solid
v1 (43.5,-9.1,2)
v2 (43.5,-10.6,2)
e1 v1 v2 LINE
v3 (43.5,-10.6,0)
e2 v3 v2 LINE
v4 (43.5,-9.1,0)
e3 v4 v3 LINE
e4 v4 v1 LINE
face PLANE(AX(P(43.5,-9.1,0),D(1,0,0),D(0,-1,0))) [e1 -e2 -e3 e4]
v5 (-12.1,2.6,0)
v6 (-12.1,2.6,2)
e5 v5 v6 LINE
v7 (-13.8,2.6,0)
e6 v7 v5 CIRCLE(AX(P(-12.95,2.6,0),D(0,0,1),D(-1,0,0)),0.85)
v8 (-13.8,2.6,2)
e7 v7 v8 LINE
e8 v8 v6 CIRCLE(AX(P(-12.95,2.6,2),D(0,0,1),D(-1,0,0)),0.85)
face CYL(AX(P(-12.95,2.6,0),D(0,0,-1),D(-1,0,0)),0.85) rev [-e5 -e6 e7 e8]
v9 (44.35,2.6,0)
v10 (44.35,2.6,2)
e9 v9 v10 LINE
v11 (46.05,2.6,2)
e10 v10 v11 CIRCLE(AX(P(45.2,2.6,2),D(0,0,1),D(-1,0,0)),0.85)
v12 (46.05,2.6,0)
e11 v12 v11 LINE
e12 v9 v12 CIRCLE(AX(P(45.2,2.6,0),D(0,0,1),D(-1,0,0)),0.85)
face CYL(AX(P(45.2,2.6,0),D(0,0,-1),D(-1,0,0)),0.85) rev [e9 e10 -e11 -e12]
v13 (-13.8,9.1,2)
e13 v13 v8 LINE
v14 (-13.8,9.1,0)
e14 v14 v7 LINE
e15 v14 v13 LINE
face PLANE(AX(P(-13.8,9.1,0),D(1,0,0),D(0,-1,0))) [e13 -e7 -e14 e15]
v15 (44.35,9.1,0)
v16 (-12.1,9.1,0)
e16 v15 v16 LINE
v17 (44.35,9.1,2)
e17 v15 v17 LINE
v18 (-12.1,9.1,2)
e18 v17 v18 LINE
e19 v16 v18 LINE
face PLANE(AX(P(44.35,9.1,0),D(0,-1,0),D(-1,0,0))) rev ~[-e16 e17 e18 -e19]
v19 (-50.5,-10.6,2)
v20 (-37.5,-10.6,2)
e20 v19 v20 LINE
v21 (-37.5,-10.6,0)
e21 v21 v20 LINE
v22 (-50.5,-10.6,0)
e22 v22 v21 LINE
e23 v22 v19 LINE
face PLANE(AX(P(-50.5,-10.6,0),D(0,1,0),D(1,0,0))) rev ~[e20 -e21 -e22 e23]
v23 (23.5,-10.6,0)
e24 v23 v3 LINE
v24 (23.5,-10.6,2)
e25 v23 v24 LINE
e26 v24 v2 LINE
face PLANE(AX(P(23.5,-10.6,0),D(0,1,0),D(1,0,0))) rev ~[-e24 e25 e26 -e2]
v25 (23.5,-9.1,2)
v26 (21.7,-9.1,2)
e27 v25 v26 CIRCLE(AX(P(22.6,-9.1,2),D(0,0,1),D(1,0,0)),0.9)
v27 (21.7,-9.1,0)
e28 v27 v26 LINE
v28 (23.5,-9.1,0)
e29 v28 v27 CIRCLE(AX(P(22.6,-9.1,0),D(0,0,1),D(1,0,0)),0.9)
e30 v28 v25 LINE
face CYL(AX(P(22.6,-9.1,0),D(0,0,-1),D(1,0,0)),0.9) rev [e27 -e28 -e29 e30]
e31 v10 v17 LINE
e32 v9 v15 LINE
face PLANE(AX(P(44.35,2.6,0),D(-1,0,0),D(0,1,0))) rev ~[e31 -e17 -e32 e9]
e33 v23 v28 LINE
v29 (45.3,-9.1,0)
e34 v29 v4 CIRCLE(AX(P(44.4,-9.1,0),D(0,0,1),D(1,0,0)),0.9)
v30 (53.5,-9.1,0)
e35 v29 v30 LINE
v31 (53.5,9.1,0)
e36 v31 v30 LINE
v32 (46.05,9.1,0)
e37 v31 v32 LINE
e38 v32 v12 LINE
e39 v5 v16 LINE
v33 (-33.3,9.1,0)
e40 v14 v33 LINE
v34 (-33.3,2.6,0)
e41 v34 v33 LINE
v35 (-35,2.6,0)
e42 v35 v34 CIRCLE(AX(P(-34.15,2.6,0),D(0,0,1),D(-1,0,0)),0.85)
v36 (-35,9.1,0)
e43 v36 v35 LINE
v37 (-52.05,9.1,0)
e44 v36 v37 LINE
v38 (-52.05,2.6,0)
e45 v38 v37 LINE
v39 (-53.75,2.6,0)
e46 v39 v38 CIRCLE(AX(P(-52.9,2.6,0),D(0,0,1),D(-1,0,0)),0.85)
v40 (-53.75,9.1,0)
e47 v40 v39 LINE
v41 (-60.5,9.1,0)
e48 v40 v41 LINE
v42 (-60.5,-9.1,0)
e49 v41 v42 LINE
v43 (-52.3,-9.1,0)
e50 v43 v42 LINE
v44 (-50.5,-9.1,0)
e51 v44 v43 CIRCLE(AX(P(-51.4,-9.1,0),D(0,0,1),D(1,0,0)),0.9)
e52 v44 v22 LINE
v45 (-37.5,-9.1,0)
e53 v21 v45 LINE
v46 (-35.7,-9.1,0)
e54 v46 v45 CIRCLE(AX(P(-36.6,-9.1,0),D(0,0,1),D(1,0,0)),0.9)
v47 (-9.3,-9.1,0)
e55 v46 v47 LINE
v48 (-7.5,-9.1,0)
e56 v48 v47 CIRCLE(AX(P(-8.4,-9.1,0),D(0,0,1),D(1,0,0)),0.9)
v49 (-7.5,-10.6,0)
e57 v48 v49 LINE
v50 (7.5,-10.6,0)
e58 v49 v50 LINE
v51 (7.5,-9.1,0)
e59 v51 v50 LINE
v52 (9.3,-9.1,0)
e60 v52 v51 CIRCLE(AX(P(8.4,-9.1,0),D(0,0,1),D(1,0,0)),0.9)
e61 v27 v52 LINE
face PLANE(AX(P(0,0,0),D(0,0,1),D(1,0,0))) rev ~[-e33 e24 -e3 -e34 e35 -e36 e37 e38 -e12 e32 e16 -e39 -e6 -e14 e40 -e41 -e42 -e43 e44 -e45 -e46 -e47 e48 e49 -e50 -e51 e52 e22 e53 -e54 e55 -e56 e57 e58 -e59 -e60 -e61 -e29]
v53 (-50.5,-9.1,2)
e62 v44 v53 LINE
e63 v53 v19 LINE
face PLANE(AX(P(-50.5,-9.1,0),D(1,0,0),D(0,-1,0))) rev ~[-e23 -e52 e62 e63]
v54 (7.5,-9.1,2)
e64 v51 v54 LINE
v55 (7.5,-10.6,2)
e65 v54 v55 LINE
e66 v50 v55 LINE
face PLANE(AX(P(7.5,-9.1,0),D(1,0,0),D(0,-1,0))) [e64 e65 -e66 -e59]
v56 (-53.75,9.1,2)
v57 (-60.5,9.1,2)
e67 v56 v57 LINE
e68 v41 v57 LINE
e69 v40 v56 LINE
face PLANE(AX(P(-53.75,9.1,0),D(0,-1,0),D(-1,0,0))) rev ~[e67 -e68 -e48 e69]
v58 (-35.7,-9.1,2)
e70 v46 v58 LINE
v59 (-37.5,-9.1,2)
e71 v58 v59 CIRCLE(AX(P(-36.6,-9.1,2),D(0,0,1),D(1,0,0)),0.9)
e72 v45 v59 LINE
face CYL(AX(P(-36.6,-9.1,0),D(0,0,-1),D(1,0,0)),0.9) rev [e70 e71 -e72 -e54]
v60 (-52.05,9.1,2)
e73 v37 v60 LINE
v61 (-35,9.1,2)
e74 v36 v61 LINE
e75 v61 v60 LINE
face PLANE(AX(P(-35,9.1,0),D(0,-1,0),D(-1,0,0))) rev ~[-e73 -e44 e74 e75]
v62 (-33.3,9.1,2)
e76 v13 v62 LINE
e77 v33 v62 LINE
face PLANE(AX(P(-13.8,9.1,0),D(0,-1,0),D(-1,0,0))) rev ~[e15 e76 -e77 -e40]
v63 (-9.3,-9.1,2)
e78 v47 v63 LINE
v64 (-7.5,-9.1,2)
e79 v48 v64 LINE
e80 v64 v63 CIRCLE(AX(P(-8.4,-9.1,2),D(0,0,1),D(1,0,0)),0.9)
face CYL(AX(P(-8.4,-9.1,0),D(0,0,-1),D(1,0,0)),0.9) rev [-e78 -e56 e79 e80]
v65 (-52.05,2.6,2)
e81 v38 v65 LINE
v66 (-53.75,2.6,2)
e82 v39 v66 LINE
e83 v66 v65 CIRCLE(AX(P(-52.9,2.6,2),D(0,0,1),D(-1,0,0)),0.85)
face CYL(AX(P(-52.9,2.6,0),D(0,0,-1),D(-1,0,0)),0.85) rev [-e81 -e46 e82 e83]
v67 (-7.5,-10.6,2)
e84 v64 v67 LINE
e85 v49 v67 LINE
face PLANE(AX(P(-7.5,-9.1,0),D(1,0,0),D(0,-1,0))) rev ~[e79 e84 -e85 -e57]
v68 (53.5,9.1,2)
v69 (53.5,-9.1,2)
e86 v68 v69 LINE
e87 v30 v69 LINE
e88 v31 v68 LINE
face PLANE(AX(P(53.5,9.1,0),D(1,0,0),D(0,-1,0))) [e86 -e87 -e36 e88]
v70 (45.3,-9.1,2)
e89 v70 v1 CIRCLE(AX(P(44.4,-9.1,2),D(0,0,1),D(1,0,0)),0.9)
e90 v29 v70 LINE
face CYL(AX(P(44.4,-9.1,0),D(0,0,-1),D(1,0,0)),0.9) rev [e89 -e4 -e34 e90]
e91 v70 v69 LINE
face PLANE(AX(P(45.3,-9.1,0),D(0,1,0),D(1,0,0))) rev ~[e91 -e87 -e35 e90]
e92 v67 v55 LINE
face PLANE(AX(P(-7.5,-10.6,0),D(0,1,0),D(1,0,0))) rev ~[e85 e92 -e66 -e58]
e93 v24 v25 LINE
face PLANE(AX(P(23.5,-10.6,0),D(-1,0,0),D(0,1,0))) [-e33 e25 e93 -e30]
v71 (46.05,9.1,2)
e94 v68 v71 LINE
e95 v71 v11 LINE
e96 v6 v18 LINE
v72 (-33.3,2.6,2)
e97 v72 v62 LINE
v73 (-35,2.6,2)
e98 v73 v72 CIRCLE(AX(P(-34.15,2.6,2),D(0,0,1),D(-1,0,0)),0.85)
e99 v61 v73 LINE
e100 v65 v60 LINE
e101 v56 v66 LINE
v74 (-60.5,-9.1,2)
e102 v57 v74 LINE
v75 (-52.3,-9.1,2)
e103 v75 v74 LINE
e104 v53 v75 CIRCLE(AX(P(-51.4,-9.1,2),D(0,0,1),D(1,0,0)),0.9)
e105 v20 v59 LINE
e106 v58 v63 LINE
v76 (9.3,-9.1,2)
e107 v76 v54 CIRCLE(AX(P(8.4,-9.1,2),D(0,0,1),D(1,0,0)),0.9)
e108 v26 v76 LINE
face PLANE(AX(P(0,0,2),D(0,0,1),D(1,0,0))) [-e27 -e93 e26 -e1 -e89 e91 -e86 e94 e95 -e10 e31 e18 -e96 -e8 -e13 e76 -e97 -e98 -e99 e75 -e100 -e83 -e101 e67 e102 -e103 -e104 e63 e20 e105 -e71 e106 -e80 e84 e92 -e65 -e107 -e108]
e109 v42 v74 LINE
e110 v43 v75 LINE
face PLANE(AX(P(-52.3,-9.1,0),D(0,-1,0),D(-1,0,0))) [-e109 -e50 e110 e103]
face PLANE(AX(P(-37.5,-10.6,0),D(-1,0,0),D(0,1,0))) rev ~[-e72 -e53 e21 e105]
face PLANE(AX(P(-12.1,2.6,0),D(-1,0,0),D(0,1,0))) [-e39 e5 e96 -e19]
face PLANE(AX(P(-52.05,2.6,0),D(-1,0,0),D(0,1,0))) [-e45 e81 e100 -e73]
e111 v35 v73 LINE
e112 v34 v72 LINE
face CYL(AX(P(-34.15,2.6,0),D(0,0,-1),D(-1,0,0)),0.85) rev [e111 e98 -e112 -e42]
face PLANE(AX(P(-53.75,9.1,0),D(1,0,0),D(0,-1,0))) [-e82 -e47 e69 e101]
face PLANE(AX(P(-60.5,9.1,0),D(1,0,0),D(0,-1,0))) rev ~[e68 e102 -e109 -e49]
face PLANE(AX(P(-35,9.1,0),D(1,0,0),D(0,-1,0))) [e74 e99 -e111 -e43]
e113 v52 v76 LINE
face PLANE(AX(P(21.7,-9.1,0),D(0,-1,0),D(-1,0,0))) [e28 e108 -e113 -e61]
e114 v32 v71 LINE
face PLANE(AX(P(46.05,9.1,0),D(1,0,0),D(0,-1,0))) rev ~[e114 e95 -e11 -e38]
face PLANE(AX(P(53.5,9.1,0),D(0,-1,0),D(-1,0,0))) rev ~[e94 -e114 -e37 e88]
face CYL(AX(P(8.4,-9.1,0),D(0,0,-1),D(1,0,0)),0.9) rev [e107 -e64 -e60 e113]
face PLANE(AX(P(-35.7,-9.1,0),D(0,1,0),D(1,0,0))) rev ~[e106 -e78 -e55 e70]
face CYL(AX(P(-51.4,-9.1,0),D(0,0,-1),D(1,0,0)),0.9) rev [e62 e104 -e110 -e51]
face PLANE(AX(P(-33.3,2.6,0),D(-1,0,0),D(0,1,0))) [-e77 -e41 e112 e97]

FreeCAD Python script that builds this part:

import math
import FreeCAD as App
import Part
import Sketcher

doc = App.newDocument("Part")
body = doc.addObject("PartDesign::Body", "Body")

sketch1 = body.newObject("Sketcher::SketchObject", "Sketch")
sketch1.AttachmentSupport = (doc.getObject("XY_Plane"), [""])
sketch1.MapMode = "FlatFace"
sketch1.addGeometry([
    Part.LineSegment(App.Vector(-53.8, 9.1, 0), App.Vector(-60.5, 9.1, 0)),
    Part.LineSegment(App.Vector(-60.5, 9.1, 0), App.Vector(-60.5, -9.1, 0)),
    Part.LineSegment(App.Vector(-60.5, -9.1, 0), App.Vector(-52.3, -9.1, 0)),
    Part.ArcOfCircle(Part.Circle(App.Vector(-51.4, -9.1, 0), App.Vector(0, 0, 1), 0.9), math.radians(0), math.radians(180)),
    Part.LineSegment(App.Vector(-50.5, -9.1, 0), App.Vector(-50.5, -10.6, 0)),
    Part.LineSegment(App.Vector(-50.5, -10.6, 0), App.Vector(-37.5, -10.6, 0)),
    Part.LineSegment(App.Vector(-37.5, -10.6, 0), App.Vector(-37.5, -9.1, 0)),
    Part.ArcOfCircle(Part.Circle(App.Vector(-36.6, -9.1, 0), App.Vector(0, 0, 1), 0.9), math.radians(0), math.radians(180)),
    Part.LineSegment(App.Vector(-35.7, -9.1, 0), App.Vector(-9.3, -9.1, 0)),
    Part.ArcOfCircle(Part.Circle(App.Vector(-8.4, -9.1, 0), App.Vector(0, 0, 1), 0.9), math.radians(0), math.radians(180)),
    Part.LineSegment(App.Vector(-7.5, -9.1, 0), App.Vector(-7.5, -10.6, 0)),
    Part.LineSegment(App.Vector(-7.5, -10.6, 0), App.Vector(7.5, -10.6, 0)),
    Part.LineSegment(App.Vector(7.5, -10.6, 0), App.Vector(7.5, -9.1, 0)),
    Part.ArcOfCircle(Part.Circle(App.Vector(8.4, -9.1, 0), App.Vector(0, 0, 1), 0.9), math.radians(0), math.radians(180)),
    Part.LineSegment(App.Vector(9.3, -9.1, 0), App.Vector(21.7, -9.1, 0)),
    Part.ArcOfCircle(Part.Circle(App.Vector(22.6, -9.1, 0), App.Vector(0, 0, 1), 0.9), math.radians(0), math.radians(180)),
    Part.LineSegment(App.Vector(23.5, -9.1, 0), App.Vector(23.5, -10.6, 0)),
    Part.LineSegment(App.Vector(23.5, -10.6, 0), App.Vector(43.5, -10.6, 0)),
    Part.LineSegment(App.Vector(43.5, -10.6, 0), App.Vector(43.5, -9.1, 0)),
    Part.ArcOfCircle(Part.Circle(App.Vector(44.4, -9.1, 0), App.Vector(0, 0, 1), 0.9), math.radians(0), math.radians(180)),
    Part.LineSegment(App.Vector(45.3, -9.1, 0), App.Vector(53.5, -9.1, 0)),
    Part.LineSegment(App.Vector(53.5, -9.1, 0), App.Vector(53.5, 9.1, 0)),
    Part.LineSegment(App.Vector(53.5, 9.1, 0), App.Vector(46, 9.1, 0)),
    Part.LineSegment(App.Vector(46, 9.1, 0), App.Vector(46, 2.6, 0)),
    Part.ArcOfCircle(Part.Circle(App.Vector(45.2, 2.6, 0), App.Vector(0, 0, 1), 0.9), math.radians(180), math.radians(360)),
    Part.LineSegment(App.Vector(44.4, 2.6, 0), App.Vector(44.4, 9.1, 0)),
    Part.LineSegment(App.Vector(44.4, 9.1, 0), App.Vector(-12.1, 9.1, 0)),
    Part.LineSegment(App.Vector(-12.1, 9.1, 0), App.Vector(-12.1, 2.6, 0)),
    Part.ArcOfCircle(Part.Circle(App.Vector(-12.9, 2.6, 0), App.Vector(0, 0, 1), 0.9), math.radians(180), math.radians(360)),
    Part.LineSegment(App.Vector(-13.8, 2.6, 0), App.Vector(-13.8, 9.1, 0)),
    Part.LineSegment(App.Vector(-13.8, 9.1, 0), App.Vector(-33.3, 9.1, 0)),
    Part.LineSegment(App.Vector(-33.3, 9.1, 0), App.Vector(-33.3, 2.6, 0)),
    Part.ArcOfCircle(Part.Circle(App.Vector(-34.1, 2.6, 0), App.Vector(0, 0, 1), 0.9), math.radians(180), math.radians(360)),
    Part.LineSegment(App.Vector(-35, 2.6, 0), App.Vector(-35, 9.1, 0)),
    Part.LineSegment(App.Vector(-35, 9.1, 0), App.Vector(-52, 9.1, 0)),
    Part.LineSegment(App.Vector(-52, 9.1, 0), App.Vector(-52, 2.6, 0)),
    Part.ArcOfCircle(Part.Circle(App.Vector(-52.9, 2.6, 0), App.Vector(0, 0, 1), 0.9), math.radians(180), math.radians(360)),
    Part.LineSegment(App.Vector(-53.8, 2.6, 0), App.Vector(-53.8, 9.1, 0)),
], False)
sketch1.addConstraint([
    Sketcher.Constraint("Coincident", 0, 2, 1, 1),
    Sketcher.Constraint("Coincident", 1, 2, 2, 1),
    Sketcher.Constraint("Coincident", 2, 2, 3, 2),
    Sketcher.Constraint("Tangent", 3, 1, 4, 1),
    Sketcher.Constraint("Coincident", 4, 2, 5, 1),
    Sketcher.Constraint("Coincident", 5, 2, 6, 1),
    Sketcher.Constraint("Tangent", 6, 2, 7, 2),
    Sketcher.Constraint("Coincident", 7, 1, 8, 1),
    Sketcher.Constraint("Coincident", 8, 2, 9, 2),
    Sketcher.Constraint("Tangent", 9, 1, 10, 1),
    Sketcher.Constraint("Coincident", 10, 2, 11, 1),
    Sketcher.Constraint("Coincident", 11, 2, 12, 1),
    Sketcher.Constraint("Tangent", 12, 2, 13, 2),
    Sketcher.Constraint("Coincident", 13, 1, 14, 1),
    Sketcher.Constraint("Coincident", 14, 2, 15, 2),
    Sketcher.Constraint("Tangent", 15, 1, 16, 1),
    Sketcher.Constraint("Coincident", 16, 2, 17, 1),
    Sketcher.Constraint("Coincident", 17, 2, 18, 1),
    Sketcher.Constraint("Tangent", 18, 2, 19, 2),
    Sketcher.Constraint("Coincident", 19, 1, 20, 1),
    Sketcher.Constraint("Coincident", 20, 2, 21, 1),
    Sketcher.Constraint("Coincident", 21, 2, 22, 1),
    Sketcher.Constraint("Coincident", 22, 2, 23, 1),
    Sketcher.Constraint("Tangent", 23, 2, 24, 2),
    Sketcher.Constraint("Tangent", 24, 1, 25, 1),
    Sketcher.Constraint("Coincident", 25, 2, 26, 1),
    Sketcher.Constraint("Coincident", 26, 2, 27, 1),
    Sketcher.Constraint("Tangent", 27, 2, 28, 2),
    Sketcher.Constraint("Tangent", 28, 1, 29, 1),
    Sketcher.Constraint("Coincident", 29, 2, 30, 1),
    Sketcher.Constraint("Coincident", 30, 2, 31, 1),
    Sketcher.Constraint("Tangent", 31, 2, 32, 2),
    Sketcher.Constraint("Tangent", 32, 1, 33, 1),
    Sketcher.Constraint("Coincident", 33, 2, 34, 1),
    Sketcher.Constraint("Coincident", 34, 2, 35, 1),
    Sketcher.Constraint("Tangent", 35, 2, 36, 2),
    Sketcher.Constraint("Tangent", 36, 1, 37, 1),
    Sketcher.Constraint("Coincident", 37, 2, 0, 1),
    Sketcher.Constraint("Horizontal", 0),
    Sketcher.Constraint("Vertical", 1),
    Sketcher.Constraint("Horizontal", 2),
    Sketcher.Constraint("Vertical", 4),
    Sketcher.Constraint("Horizontal", 5),
    Sketcher.Constraint("Vertical", 6),
    Sketcher.Constraint("Horizontal", 8),
    Sketcher.Constraint("Vertical", 10),
    Sketcher.Constraint("Horizontal", 11),
    Sketcher.Constraint("Vertical", 12),
    Sketcher.Constraint("Horizontal", 14),
    Sketcher.Constraint("Vertical", 16),
    Sketcher.Constraint("Horizontal", 17),
    Sketcher.Constraint("Vertical", 18),
    Sketcher.Constraint("Horizontal", 20),
    Sketcher.Constraint("Vertical", 21),
    Sketcher.Constraint("Horizontal", 22),
    Sketcher.Constraint("Vertical", 23),
    Sketcher.Constraint("Vertical", 25),
    Sketcher.Constraint("Horizontal", 26),
    Sketcher.Constraint("Vertical", 27),
    Sketcher.Constraint("Vertical", 29),
    Sketcher.Constraint("Horizontal", 30),
    Sketcher.Constraint("Vertical", 31),
    Sketcher.Constraint("Vertical", 33),
    Sketcher.Constraint("Horizontal", 34),
    Sketcher.Constraint("Vertical", 35),
    Sketcher.Constraint("Vertical", 37),
    Sketcher.Constraint("Equal", 3, 7),
    Sketcher.Constraint("Equal", 7, 9),
    Sketcher.Constraint("Equal", 9, 13),
    Sketcher.Constraint("Equal", 13, 15),
    Sketcher.Constraint("Equal", 15, 19),
    Sketcher.Constraint("Equal", 24, 28),
    Sketcher.Constraint("Equal", 28, 32),
    Sketcher.Constraint("Equal", 32, 36),
    Sketcher.Constraint("Symmetric", 9, 3, 13, 3, -2),
    Sketcher.Constraint("Horizontal", 3, 3, 7, 3),
    Sketcher.Constraint("Horizontal", 7, 3, 9, 3),
    Sketcher.Constraint("Horizontal", 13, 3, 15, 3),
    Sketcher.Constraint("Horizontal", 15, 3, 19, 3),
    Sketcher.Constraint("Horizontal", 24, 3, 28, 3),
    Sketcher.Constraint("Horizontal", 28, 3, 32, 3),
    Sketcher.Constraint("Horizontal", 32, 3, 36, 3),
    Sketcher.Constraint("Horizontal", 19, 3, 1, 2),
    Sketcher.Constraint("Horizontal", 6, 2, 7, 1),
    Sketcher.Constraint("Horizontal", 5, 2, 10, 2),
    Sketcher.Constraint("Horizontal", 12, 2, 13, 1),
    Sketcher.Constraint("Horizontal", 11, 2, 16, 2),
    Sketcher.Constraint("Horizontal", 18, 2, 19, 1),
    Sketcher.Constraint("Horizontal", 0, 2, 21, 2),
    Sketcher.Constraint("Horizontal", 22, 2, 25, 2),
    Sketcher.Constraint("Horizontal", 26, 2, 29, 2),
    Sketcher.Constraint("Horizontal", 30, 2, 33, 2),
    Sketcher.Constraint("Equal", 2, 20),
    Sketcher.Constraint("Radius", 3, 0.9),
    Sketcher.Constraint("DistanceX", 5, 1, 5, 2, 13.0),
    Sketcher.Constraint("DistanceX", 11, 1, 11, 2, 15.0),
    Sketcher.Constraint("DistanceX", 17, 1, 17, 2, 20.0),
    Sketcher.Constraint("Radius", 24, 0.85),
    Sketcher.Constraint("DistanceX", 30, 2, 30, 1, 19.5),
    Sketcher.Constraint("DistanceY", 1, 2, 1, 1, 18.2),
    Sketcher.Constraint("DistanceY", 4, 2, 4, 1, 1.5),
    Sketcher.Constraint("DistanceY", 23, 2, 23, 1, 6.5),
    Sketcher.Constraint("DistanceX", 1, 2, 3, 1, 10.0),
    Sketcher.Constraint("DistanceX", 12, 2, 15, 1, 16.0),
    Sketcher.Constraint("DistanceX", 0, 2, 0, 1, 6.75),
    Sketcher.Constraint("DistanceX", 26, 2, 26, 1, 56.45),
    Sketcher.Constraint("DistanceX", 34, 2, 34, 1, 17.05),
    Sketcher.Constraint("DistanceX", 17, 2, 24, 3, 1.7),
    Sketcher.Constraint("DistanceY", 3, 3, -1, 1, 9.1),
])
pad1 = body.newObject("PartDesign::Pad", "Pad")
pad1.Profile = sketch1
pad1.Length = 2

doc.recompute()
